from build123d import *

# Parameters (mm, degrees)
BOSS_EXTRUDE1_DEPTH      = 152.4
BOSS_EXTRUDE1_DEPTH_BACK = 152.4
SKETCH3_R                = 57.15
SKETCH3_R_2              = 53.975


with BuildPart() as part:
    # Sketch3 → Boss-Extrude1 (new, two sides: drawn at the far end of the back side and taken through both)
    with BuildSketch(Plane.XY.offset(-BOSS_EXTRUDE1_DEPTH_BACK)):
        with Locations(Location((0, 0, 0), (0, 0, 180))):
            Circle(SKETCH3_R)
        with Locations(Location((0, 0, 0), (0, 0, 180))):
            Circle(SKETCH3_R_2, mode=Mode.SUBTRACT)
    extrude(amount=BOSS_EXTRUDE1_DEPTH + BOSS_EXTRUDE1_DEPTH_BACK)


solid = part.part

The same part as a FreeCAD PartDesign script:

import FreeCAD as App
import Part
import Sketcher

V = App.Vector
Q = App.Units.Quantity

doc = App.newDocument("Part")
body = doc.addObject("PartDesign::Body", "Body")

# Sketch on XY plane
sketch1 = body.newObject("Sketcher::SketchObject", "Sketch")
sketch1.AttachmentSupport = (doc.getObject("XY_Plane"), [""])
sketch1.MapMode = "FlatFace"
sketch1.addGeometry([
    Part.Circle(V(0, 0, 0), V(0, 0, 1), 57),
    Part.Circle(V(0, 0, 0), V(0, 0, 1), 54),
], False)
sketch1.addConstraint([
    Sketcher.Constraint("Coincident", 0, 3, -1, 1),
    Sketcher.Constraint("Coincident", 1, 3, -1, 1),
    Sketcher.Constraint("Diameter", 0, Q("4.5 in")),
    Sketcher.Constraint("Diameter", 1, Q("4.25 in")),
])
pad1 = body.newObject("PartDesign::Pad", "Pad")
pad1.Profile = sketch1
pad1.Type = "TwoLengths"
pad1.Length = Q("6 in")
pad1.Length2 = Q("6 in")

doc.recompute()
